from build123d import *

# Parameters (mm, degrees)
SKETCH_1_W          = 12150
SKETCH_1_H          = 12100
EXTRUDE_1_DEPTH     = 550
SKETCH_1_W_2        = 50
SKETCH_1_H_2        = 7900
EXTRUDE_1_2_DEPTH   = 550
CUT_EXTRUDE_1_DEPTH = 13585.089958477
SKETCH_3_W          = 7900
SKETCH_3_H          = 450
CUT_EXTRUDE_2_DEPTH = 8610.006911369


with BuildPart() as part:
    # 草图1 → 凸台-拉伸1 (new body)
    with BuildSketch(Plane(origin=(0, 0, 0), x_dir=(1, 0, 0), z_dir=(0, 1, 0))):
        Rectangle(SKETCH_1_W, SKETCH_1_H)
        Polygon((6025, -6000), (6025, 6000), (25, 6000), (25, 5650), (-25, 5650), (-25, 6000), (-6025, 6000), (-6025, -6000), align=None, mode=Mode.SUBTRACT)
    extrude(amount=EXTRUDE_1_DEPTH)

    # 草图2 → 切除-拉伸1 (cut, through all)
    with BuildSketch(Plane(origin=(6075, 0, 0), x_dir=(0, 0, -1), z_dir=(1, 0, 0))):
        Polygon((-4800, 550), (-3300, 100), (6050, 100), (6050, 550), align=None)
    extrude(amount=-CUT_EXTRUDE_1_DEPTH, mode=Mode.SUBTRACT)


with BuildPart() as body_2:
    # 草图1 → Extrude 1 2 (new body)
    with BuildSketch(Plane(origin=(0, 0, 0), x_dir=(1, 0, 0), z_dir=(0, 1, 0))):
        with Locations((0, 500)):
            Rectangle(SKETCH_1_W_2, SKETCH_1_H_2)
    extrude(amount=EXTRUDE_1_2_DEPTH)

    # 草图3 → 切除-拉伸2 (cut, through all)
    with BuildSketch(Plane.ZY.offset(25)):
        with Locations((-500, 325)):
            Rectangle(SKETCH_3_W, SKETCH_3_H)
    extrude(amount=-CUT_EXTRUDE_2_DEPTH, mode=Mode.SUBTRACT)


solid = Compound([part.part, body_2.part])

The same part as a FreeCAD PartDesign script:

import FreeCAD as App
import Part
import Sketcher

doc = App.newDocument("Part")
body = doc.addObject("PartDesign::Body", "Body")

sketch1 = body.newObject("Sketcher::SketchObject", "Sketch")
sketch1.AttachmentSupport = (doc.getObject("XZ_Plane"), [""])
sketch1.MapMode = "FlatFace"
sketch1.addGeometry([
    Part.LineSegment(App.Vector(-6075, -6050, 0), App.Vector(-6075, 6050, 0)),
    Part.LineSegment(App.Vector(-6075, 6050, 0), App.Vector(6075, 6050, 0)),
    Part.LineSegment(App.Vector(6075, 6050, 0), App.Vector(6075, -6050, 0)),
    Part.LineSegment(App.Vector(6075, -6050, 0), App.Vector(-6075, -6050, 0)),
    Part.LineSegment(App.Vector(6025, -6000, 0), App.Vector(6025, 6000, 0)),
    Part.LineSegment(App.Vector(6025, 6000, 0), App.Vector(-6025, 6000, 0)),
    Part.LineSegment(App.Vector(-6025, 6000, 0), App.Vector(-6025, -6000, 0)),
    Part.LineSegment(App.Vector(-6025, -6000, 0), App.Vector(-25, -6000, 0)),
    Part.LineSegment(App.Vector(-25, -6000, 0), App.Vector(-25, -5650, 0)),
    Part.LineSegment(App.Vector(-25, -5650, 0), App.Vector(25, -5650, 0)),
    Part.LineSegment(App.Vector(25, -5650, 0), App.Vector(25, -6000, 0)),
    Part.LineSegment(App.Vector(25, -6000, 0), App.Vector(6025, -6000, 0)),
], False)
sketch1.addConstraint([
    Sketcher.Constraint("Coincident", 0, 2, 1, 1),
    Sketcher.Constraint("Coincident", 1, 2, 2, 1),
    Sketcher.Constraint("Coincident", 2, 2, 3, 1),
    Sketcher.Constraint("Coincident", 3, 2, 0, 1),
    Sketcher.Constraint("Coincident", 4, 2, 5, 1),
    Sketcher.Constraint("Coincident", 5, 2, 6, 1),
    Sketcher.Constraint("Coincident", 6, 2, 7, 1),
    Sketcher.Constraint("Coincident", 7, 2, 8, 1),
    Sketcher.Constraint("Coincident", 8, 2, 9, 1),
    Sketcher.Constraint("Coincident", 9, 2, 10, 1),
    Sketcher.Constraint("Coincident", 10, 2, 11, 1),
    Sketcher.Constraint("Coincident", 11, 2, 4, 1),
    Sketcher.Constraint("Vertical", 0),
    Sketcher.Constraint("Horizontal", 1),
    Sketcher.Constraint("Vertical", 2),
    Sketcher.Constraint("Horizontal", 3),
    Sketcher.Constraint("Vertical", 4),
    Sketcher.Constraint("Horizontal", 5),
    Sketcher.Constraint("Vertical", 6),
    Sketcher.Constraint("Horizontal", 7),
    Sketcher.Constraint("Vertical", 8),
    Sketcher.Constraint("Horizontal", 9),
    Sketcher.Constraint("Vertical", 10),
    Sketcher.Constraint("Horizontal", 11),
    Sketcher.Constraint("Symmetric", 0, 2, 2, 2, -1, 1),
    Sketcher.Constraint("Symmetric", 4, 2, 6, 2, -1, 1),
    Sketcher.Constraint("Symmetric", 7, 2, 10, 2, -2),
    Sketcher.Constraint("DistanceX", 1, 1, 1, 2, 12150.0),
    Sketcher.Constraint("DistanceX", 5, 2, 5, 1, 12050.0),
    Sketcher.Constraint("DistanceX", 7, 1, 7, 2, 6000.0),
    Sketcher.Constraint("DistanceY", 0, 1, 0, 2, 12100.0),
    Sketcher.Constraint("DistanceY", 4, 1, 4, 2, 12000.0),
    Sketcher.Constraint("DistanceY", 8, 1, 8, 2, 350.0),
])
pad1 = body.newObject("PartDesign::Pad", "Pad")
pad1.Profile = sketch1
pad1.Length = 550
pad1.Reversed = True

sketch2 = body.newObject("Sketcher::SketchObject", "Sketch001")
sketch2.AttachmentSupport = (doc.getObject("YZ_Plane"), [""])
sketch2.MapMode = "FlatFace"
sketch2.AttachmentOffset = App.Placement(App.Vector(0, 0, 6075), App.Rotation())
sketch2.addGeometry([
    Part.LineSegment(App.Vector(550, 4800, 0), App.Vector(100, 3300, 0)),
    Part.LineSegment(App.Vector(100, 3300, 0), App.Vector(100, -6050, 0)),
    Part.LineSegment(App.Vector(100, -6050, 0), App.Vector(550, -6050, 0)),
    Part.LineSegment(App.Vector(550, -6050, 0), App.Vector(550, 4800, 0)),
], False)
sketch2.addConstraint([
    Sketcher.Constraint("Coincident", 0, 2, 1, 1),
    Sketcher.Constraint("Coincident", 1, 2, 2, 1),
    Sketcher.Constraint("Coincident", 2, 2, 3, 1),
    Sketcher.Constraint("Coincident", 3, 2, 0, 1),
    Sketcher.Constraint("Vertical", 1),
    Sketcher.Constraint("Horizontal", 2),
    Sketcher.Constraint("Vertical", 3),
    Sketcher.Constraint("DistanceX", 2, 1, 2, 2, 450.0),
    Sketcher.Constraint("DistanceY", 1, 2, 1, 1, 9350.0),
    Sketcher.Constraint("DistanceY", 3, 1, 3, 2, 10850.0),
    Sketcher.Constraint("DistanceX", -1, 1, 0, 2, 100.0),
    Sketcher.Constraint("DistanceY", -1, 1, 0, 2, 3300.0),
])
pocket1 = body.newObject("PartDesign::Pocket", "Pocket")
pocket1.Profile = sketch2
pocket1.Type = "ThroughAll"
body2 = doc.addObject("PartDesign::Body", "Body001")

sketch3 = body2.newObject("Sketcher::SketchObject", "Sketch002")
sketch3.AttachmentSupport = (doc.getObject("XZ_Plane001"), [""])
sketch3.MapMode = "FlatFace"
sketch3.addGeometry([
    Part.LineSegment(App.Vector(-25, -4450, 0), App.Vector(-25, 3450, 0)),
    Part.LineSegment(App.Vector(-25, 3450, 0), App.Vector(25, 3450, 0)),
    Part.LineSegment(App.Vector(25, 3450, 0), App.Vector(25, -4450, 0)),
    Part.LineSegment(App.Vector(25, -4450, 0), App.Vector(-25, -4450, 0)),
], False)
sketch3.addConstraint([
    Sketcher.Constraint("Coincident", 0, 2, 1, 1),
    Sketcher.Constraint("Coincident", 1, 2, 2, 1),
    Sketcher.Constraint("Coincident", 2, 2, 3, 1),
    Sketcher.Constraint("Coincident", 3, 2, 0, 1),
    Sketcher.Constraint("Vertical", 0),
    Sketcher.Constraint("Horizontal", 1),
    Sketcher.Constraint("Vertical", 2),
    Sketcher.Constraint("Horizontal", 3),
    Sketcher.Constraint("DistanceX", 1, 1, 1, 2, 50.0),
    Sketcher.Constraint("DistanceY", 0, 1, 0, 2, 7900.0),
    Sketcher.Constraint("DistanceX", 0, 2, -1, 1, 25.0),
    Sketcher.Constraint("DistanceY", -1, 1, 0, 2, 3450.0),
])
pad2 = body2.newObject("PartDesign::Pad", "Pad001")
pad2.Profile = sketch3
pad2.Length = 550
pad2.Reversed = True

sketch4 = body2.newObject("Sketcher::SketchObject", "Sketch003")
sketch4.AttachmentSupport = (doc.getObject("YZ_Plane001"), [""])
sketch4.MapMode = "FlatFace"
sketch4.AttachmentOffset = App.Placement(App.Vector(0, 0, -25), App.Rotation())
sketch4.addGeometry([
    Part.LineSegment(App.Vector(550, -4450, 0), App.Vector(100, -4450, 0)),
    Part.LineSegment(App.Vector(100, -4450, 0), App.Vector(100, 3450, 0)),
    Part.LineSegment(App.Vector(100, 3450, 0), App.Vector(550, 3450, 0)),
    Part.LineSegment(App.Vector(550, 3450, 0), App.Vector(550, -4450, 0)),
], False)
sketch4.addConstraint([
    Sketcher.Constraint("Coincident", 0, 2, 1, 1),
    Sketcher.Constraint("Coincident", 1, 2, 2, 1),
    Sketcher.Constraint("Coincident", 2, 2, 3, 1),
    Sketcher.Constraint("Coincident", 3, 2, 0, 1),
    Sketcher.Constraint("Horizontal", 0),
    Sketcher.Constraint("Vertical", 1),
    Sketcher.Constraint("Horizontal", 2),
    Sketcher.Constraint("Vertical", 3),
    Sketcher.Constraint("DistanceX", 0, 2, 0, 1, 450.0),
    Sketcher.Constraint("DistanceY", 1, 1, 1, 2, 7900.0),
    Sketcher.Constraint("DistanceX", -1, 1, 0, 2, 100.0),
    Sketcher.Constraint("DistanceY", 0, 2, -1, 1, 4450.0),
])
pocket2 = body2.newObject("PartDesign::Pocket", "Pocket001")
pocket2.Profile = sketch4
pocket2.Type = "ThroughAll"
pocket2.Reversed = True

doc.recompute()
